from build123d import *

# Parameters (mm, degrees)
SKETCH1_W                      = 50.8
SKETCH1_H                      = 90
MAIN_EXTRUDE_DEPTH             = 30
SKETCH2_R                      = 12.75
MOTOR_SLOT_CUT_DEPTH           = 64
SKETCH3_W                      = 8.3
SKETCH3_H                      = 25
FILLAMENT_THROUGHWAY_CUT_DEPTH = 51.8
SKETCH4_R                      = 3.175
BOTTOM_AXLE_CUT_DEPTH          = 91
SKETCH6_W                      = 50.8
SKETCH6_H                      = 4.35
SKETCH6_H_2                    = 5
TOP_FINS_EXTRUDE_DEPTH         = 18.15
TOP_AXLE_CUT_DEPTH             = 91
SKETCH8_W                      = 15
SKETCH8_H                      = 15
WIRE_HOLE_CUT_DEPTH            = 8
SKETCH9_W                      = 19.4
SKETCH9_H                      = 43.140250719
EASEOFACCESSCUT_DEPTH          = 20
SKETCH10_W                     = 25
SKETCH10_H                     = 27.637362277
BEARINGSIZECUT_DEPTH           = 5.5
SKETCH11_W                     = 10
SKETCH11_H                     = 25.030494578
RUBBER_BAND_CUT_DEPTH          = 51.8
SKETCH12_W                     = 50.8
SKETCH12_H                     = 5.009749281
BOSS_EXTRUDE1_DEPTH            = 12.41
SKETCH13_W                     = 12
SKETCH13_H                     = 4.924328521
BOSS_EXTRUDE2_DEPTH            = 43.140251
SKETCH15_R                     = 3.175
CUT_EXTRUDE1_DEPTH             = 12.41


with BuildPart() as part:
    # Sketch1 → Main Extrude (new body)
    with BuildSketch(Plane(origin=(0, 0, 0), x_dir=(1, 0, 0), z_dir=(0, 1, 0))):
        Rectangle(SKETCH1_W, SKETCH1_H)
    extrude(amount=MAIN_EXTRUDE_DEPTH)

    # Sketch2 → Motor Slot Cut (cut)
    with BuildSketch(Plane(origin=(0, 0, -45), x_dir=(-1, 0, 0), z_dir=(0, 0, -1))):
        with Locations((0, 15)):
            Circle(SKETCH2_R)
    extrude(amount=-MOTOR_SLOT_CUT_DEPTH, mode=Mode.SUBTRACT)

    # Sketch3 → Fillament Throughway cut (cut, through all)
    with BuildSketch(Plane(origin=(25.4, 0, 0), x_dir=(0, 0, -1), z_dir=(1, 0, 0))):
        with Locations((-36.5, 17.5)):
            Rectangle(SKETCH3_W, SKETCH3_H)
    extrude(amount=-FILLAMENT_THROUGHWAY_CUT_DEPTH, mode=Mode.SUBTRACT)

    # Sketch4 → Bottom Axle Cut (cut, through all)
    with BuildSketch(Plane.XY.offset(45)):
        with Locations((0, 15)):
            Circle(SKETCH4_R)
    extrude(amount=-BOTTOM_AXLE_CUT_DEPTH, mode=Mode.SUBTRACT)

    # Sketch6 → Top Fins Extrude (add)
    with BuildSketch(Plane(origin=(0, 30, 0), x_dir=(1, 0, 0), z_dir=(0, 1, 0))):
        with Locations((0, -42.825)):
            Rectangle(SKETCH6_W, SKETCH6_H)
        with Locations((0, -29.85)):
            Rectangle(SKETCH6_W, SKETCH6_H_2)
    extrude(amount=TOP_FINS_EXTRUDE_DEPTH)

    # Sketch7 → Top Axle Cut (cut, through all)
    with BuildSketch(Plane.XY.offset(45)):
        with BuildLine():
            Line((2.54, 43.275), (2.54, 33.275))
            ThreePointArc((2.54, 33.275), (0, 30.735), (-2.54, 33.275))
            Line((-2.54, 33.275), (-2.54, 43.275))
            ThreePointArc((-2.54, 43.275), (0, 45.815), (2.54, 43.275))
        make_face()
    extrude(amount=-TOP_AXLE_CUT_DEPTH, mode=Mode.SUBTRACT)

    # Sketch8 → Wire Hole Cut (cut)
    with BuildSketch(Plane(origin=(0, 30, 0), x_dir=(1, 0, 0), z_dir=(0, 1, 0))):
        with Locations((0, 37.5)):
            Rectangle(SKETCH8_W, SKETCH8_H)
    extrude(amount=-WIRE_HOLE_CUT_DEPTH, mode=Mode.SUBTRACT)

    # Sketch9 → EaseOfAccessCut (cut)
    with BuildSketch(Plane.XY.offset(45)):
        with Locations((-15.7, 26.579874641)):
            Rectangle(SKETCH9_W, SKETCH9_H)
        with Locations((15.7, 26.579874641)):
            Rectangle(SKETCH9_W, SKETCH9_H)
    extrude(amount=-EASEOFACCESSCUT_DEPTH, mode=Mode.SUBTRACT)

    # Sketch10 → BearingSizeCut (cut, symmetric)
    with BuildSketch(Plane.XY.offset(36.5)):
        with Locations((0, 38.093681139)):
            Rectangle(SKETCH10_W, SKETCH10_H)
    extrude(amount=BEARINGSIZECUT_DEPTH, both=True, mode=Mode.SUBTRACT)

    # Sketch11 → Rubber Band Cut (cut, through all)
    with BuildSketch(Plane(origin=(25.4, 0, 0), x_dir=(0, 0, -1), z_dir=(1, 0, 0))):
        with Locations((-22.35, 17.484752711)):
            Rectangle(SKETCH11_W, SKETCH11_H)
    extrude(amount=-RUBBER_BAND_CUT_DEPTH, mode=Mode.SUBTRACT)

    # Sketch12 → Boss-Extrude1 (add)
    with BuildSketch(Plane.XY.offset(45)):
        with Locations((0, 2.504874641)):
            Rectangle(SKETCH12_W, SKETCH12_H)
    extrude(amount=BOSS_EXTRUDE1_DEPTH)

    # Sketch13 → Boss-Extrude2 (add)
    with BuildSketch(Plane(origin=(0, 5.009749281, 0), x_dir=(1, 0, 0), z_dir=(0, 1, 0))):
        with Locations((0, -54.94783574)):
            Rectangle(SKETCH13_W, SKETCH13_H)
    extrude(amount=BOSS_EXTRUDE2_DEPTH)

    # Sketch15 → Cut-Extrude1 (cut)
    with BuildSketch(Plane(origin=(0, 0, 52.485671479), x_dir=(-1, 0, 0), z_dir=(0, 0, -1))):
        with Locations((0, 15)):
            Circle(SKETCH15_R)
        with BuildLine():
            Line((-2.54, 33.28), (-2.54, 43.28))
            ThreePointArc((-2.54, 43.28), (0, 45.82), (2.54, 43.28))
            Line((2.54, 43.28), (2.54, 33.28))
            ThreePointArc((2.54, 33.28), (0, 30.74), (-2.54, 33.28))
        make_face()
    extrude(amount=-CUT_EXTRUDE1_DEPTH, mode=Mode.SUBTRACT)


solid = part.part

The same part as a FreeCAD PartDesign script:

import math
import FreeCAD as App
import Part
import Sketcher

V = App.Vector


def add_polygon(sketch, points):
    """Adds a closed chain of lines whose ends are joined by coincident constraints."""
    first, n = sketch.GeometryCount, len(points)
    for a, b in zip(points, points[1:] + points[:1]):
        sketch.addGeometry(Part.LineSegment(App.Vector(*a, 0), App.Vector(*b, 0)), False)
    for i in range(n):
        sketch.addConstraint(Sketcher.Constraint("Coincident", first + i, 2, first + (i + 1) % n, 1))

doc = App.newDocument("Part")
body = doc.addObject("PartDesign::Body", "Body")

sketch1 = body.newObject("Sketcher::SketchObject", "Sketch")
sketch1.AttachmentSupport = (doc.getObject("XZ_Plane"), [""])
sketch1.MapMode = "FlatFace"
add_polygon(sketch1, [(-25.4, -45), (-25.4, 45), (25.4, 45), (25.4, -45)])
sketch1.addConstraint(Sketcher.Constraint("Vertical", 0))
sketch1.addConstraint(Sketcher.Constraint("Horizontal", 1))
sketch1.addConstraint(Sketcher.Constraint("Vertical", 2))
sketch1.addConstraint(Sketcher.Constraint("Horizontal", 3))
sketch1.addConstraint(Sketcher.Constraint("Symmetric", 0, 2, 2, 2, -1, 1))
sketch1.addConstraint(Sketcher.Constraint("DistanceY", 0, 1, 0, 2, 90.0))
sketch1.addConstraint(Sketcher.Constraint("DistanceX", 1, 1, 1, 2, 50.8))
pad1 = body.newObject("PartDesign::Pad", "Pad")
pad1.Profile = sketch1
pad1.Length = 30
pad1.Reversed = True

sketch2 = body.newObject("Sketcher::SketchObject", "Sketch001")
sketch2.AttachmentSupport = (doc.getObject("XY_Plane"), [""])
sketch2.MapMode = "FlatFace"
sketch2.AttachmentOffset = App.Placement(V(0, 0, -45), App.Rotation())
sketch2.addGeometry(Part.Circle(V(0, 15, 0), V(0, 0, 1), 12.75), False)
sketch2.addConstraint(Sketcher.Constraint("PointOnObject", 0, 3, -2))
sketch2.addConstraint(Sketcher.Constraint("Diameter", 0, 25.5))
sketch2.addConstraint(Sketcher.Constraint("DistanceY", -1, 1, 0, 3, 15.0))
pocket1 = body.newObject("PartDesign::Pocket", "Pocket")
pocket1.Profile = sketch2
pocket1.Length = 64
pocket1.Reversed = True

sketch3 = body.newObject("Sketcher::SketchObject", "Sketch002")
sketch3.AttachmentSupport = (doc.getObject("YZ_Plane"), [""])
sketch3.MapMode = "FlatFace"
sketch3.AttachmentOffset = App.Placement(V(0, 0, 25.4), App.Rotation())
add_polygon(sketch3, [(30, 40.65), (5, 40.65), (5, 32.35), (30, 32.35)])
sketch3.addConstraint(Sketcher.Constraint("Horizontal", 0))
sketch3.addConstraint(Sketcher.Constraint("Vertical", 1))
sketch3.addConstraint(Sketcher.Constraint("Horizontal", 2))
sketch3.addConstraint(Sketcher.Constraint("Vertical", 3))
sketch3.addConstraint(Sketcher.Constraint("DistanceX", 0, 2, 0, 1, 25.0))
sketch3.addConstraint(Sketcher.Constraint("DistanceY", 1, 2, 1, 1, 8.3))
sketch3.addConstraint(Sketcher.Constraint("DistanceX", -1, 1, 0, 2, 5.0))
sketch3.addConstraint(Sketcher.Constraint("DistanceY", -1, 1, 0, 2, 40.65))
pocket2 = body.newObject("PartDesign::Pocket", "Pocket001")
pocket2.Profile = sketch3
pocket2.Type = "ThroughAll"

sketch4 = body.newObject("Sketcher::SketchObject", "Sketch003")
sketch4.AttachmentSupport = (doc.getObject("XY_Plane"), [""])
sketch4.MapMode = "FlatFace"
sketch4.AttachmentOffset = App.Placement(V(0, 0, 45), App.Rotation())
sketch4.addGeometry(Part.Circle(V(0, 15, 0), V(0, 0, 1), 3.175), False)
sketch4.addConstraint(Sketcher.Constraint("PointOnObject", 0, 3, -2))
sketch4.addConstraint(Sketcher.Constraint("Diameter", 0, 6.35))
sketch4.addConstraint(Sketcher.Constraint("DistanceY", -1, 1, 0, 3, 15.0))
pocket3 = body.newObject("PartDesign::Pocket", "Pocket002")
pocket3.Profile = sketch4
pocket3.Type = "ThroughAll"

sketch5 = body.newObject("Sketcher::SketchObject", "Sketch004")
sketch5.AttachmentSupport = (doc.getObject("XZ_Plane"), [""])
sketch5.MapMode = "FlatFace"
sketch5.AttachmentOffset = App.Placement(V(0, 0, -30), App.Rotation())
add_polygon(sketch5, [(-25.4, 40.65), (-25.4, 45), (25.4, 45), (25.4, 40.65)])
add_polygon(sketch5, [(-25.4, 27.35), (-25.4, 32.35), (25.4, 32.35), (25.4, 27.35)])
sketch5.addConstraint(Sketcher.Constraint("Vertical", 0))
sketch5.addConstraint(Sketcher.Constraint("Horizontal", 1))
sketch5.addConstraint(Sketcher.Constraint("Vertical", 2))
sketch5.addConstraint(Sketcher.Constraint("Horizontal", 3))
sketch5.addConstraint(Sketcher.Constraint("Vertical", 4))
sketch5.addConstraint(Sketcher.Constraint("Horizontal", 5))
sketch5.addConstraint(Sketcher.Constraint("Vertical", 6))
sketch5.addConstraint(Sketcher.Constraint("Horizontal", 7))
sketch5.addConstraint(Sketcher.Constraint("Vertical", 3, 2, 4, 2))
sketch5.addConstraint(Sketcher.Constraint("Vertical", 2, 2, 5, 2))
sketch5.addConstraint(Sketcher.Constraint("DistanceY", 4, 1, 4, 2, 5.0))
sketch5.addConstraint(Sketcher.Constraint("DistanceX", 1, 1, 1, 2, 50.8))
sketch5.addConstraint(Sketcher.Constraint("DistanceY", -1, 1, 0, 2, 45.0))
sketch5.addConstraint(Sketcher.Constraint("DistanceY", 0, 1, 0, 2, 4.35))
sketch5.addConstraint(Sketcher.Constraint("DistanceX", 0, 2, -1, 1, 25.4))
sketch5.addConstraint(Sketcher.Constraint("DistanceY", 4, 2, 3, 2, 8.3))
pad2 = body.newObject("PartDesign::Pad", "Pad001")
pad2.Profile = sketch5
pad2.Length = 18.15
pad2.Reversed = True

sketch6 = body.newObject("Sketcher::SketchObject", "Sketch005")
sketch6.AttachmentSupport = (doc.getObject("XY_Plane"), [""])
sketch6.MapMode = "FlatFace"
sketch6.AttachmentOffset = App.Placement(V(0, 0, 45), App.Rotation())
sketch6.addGeometry(Part.LineSegment(V(2.54, 33.275, 0), V(2.54, 43.275, 0)), False)
sketch6.addGeometry(Part.ArcOfCircle(Part.Circle(V(0, 43.275, 0), V(0, 0, 1), 2.54), math.radians(0), math.radians(180)), False)
sketch6.addGeometry(Part.LineSegment(V(-2.54, 43.275, 0), V(-2.54, 33.275, 0)), False)
sketch6.addGeometry(Part.ArcOfCircle(Part.Circle(V(0, 33.275, 0), V(0, 0, 1), 2.54), math.radians(180), math.radians(360)), False)
sketch6.addConstraint(Sketcher.Constraint("Tangent", 0, 2, 1, 1))
sketch6.addConstraint(Sketcher.Constraint("Tangent", 1, 2, 2, 1))
sketch6.addConstraint(Sketcher.Constraint("Tangent", 2, 2, 3, 1))
sketch6.addConstraint(Sketcher.Constraint("Tangent", 3, 2, 0, 1))
sketch6.addConstraint(Sketcher.Constraint("Vertical", 0))
sketch6.addConstraint(Sketcher.Constraint("Vertical", 2))
sketch6.addConstraint(Sketcher.Constraint("PointOnObject", 1, 3, -2))
sketch6.addConstraint(Sketcher.Constraint("DistanceY", 0, 1, 0, 2, 10.0))
sketch6.addConstraint(Sketcher.Constraint("Radius", 1, 2.54))
sketch6.addConstraint(Sketcher.Constraint("DistanceY", -1, 1, 1, 3, 43.275))
pocket4 = body.newObject("PartDesign::Pocket", "Pocket003")
pocket4.Profile = sketch6
pocket4.Type = "ThroughAll"

sketch7 = body.newObject("Sketcher::SketchObject", "Sketch006")
sketch7.AttachmentSupport = (doc.getObject("XZ_Plane"), [""])
sketch7.MapMode = "FlatFace"
sketch7.AttachmentOffset = App.Placement(V(0, 0, -30), App.Rotation())
add_polygon(sketch7, [(-7.5, -45), (-7.5, -30), (7.5, -30), (7.5, -45)])
sketch7.addConstraint(Sketcher.Constraint("Vertical", 0))
sketch7.addConstraint(Sketcher.Constraint("Horizontal", 1))
sketch7.addConstraint(Sketcher.Constraint("Vertical", 2))
sketch7.addConstraint(Sketcher.Constraint("Horizontal", 3))
sketch7.addConstraint(Sketcher.Constraint("Equal", 3, 0))
sketch7.addConstraint(Sketcher.Constraint("DistanceX", 1, 1, 1, 2, 15.0))
sketch7.addConstraint(Sketcher.Constraint("DistanceY", 0, 2, -1, 1, 30.0))
sketch7.addConstraint(Sketcher.Constraint("DistanceX", 0, 2, -1, 1, 7.5))
pocket5 = body.newObject("PartDesign::Pocket", "Pocket004")
pocket5.Profile = sketch7
pocket5.Length = 8
pocket5.Reversed = True

sketch8 = body.newObject("Sketcher::SketchObject", "Sketch007")
sketch8.AttachmentSupport = (doc.getObject("XY_Plane"), [""])
sketch8.MapMode = "FlatFace"
sketch8.AttachmentOffset = App.Placement(V(0, 0, 45), App.Rotation())
add_polygon(sketch8, [(-25.4, 48.15), (-25.4, 5.009749), (-6, 5.009749), (-6, 48.15)])
add_polygon(sketch8, [(6, 48.15), (6, 5.009749), (25.4, 5.009749), (25.4, 48.15)])
sketch8.addConstraint(Sketcher.Constraint("Vertical", 0))
sketch8.addConstraint(Sketcher.Constraint("Horizontal", 1))
sketch8.addConstraint(Sketcher.Constraint("Vertical", 2))
sketch8.addConstraint(Sketcher.Constraint("Horizontal", 3))
sketch8.addConstraint(Sketcher.Constraint("Vertical", 4))
sketch8.addConstraint(Sketcher.Constraint("Horizontal", 5))
sketch8.addConstraint(Sketcher.Constraint("Vertical", 6))
sketch8.addConstraint(Sketcher.Constraint("Horizontal", 7))
sketch8.addConstraint(Sketcher.Constraint("Symmetric", 1, 2, 4, 2, -2))
sketch8.addConstraint(Sketcher.Constraint("Symmetric", 3, 2, 6, 2, -2))
sketch8.addConstraint(Sketcher.Constraint("DistanceX", 1, 1, 1, 2, 19.4))
sketch8.addConstraint(Sketcher.Constraint("DistanceX", 1, 2, -1, 1, 6.0))
sketch8.addConstraint(Sketcher.Constraint("DistanceY", -1, 1, 2, 2, 48.15))
sketch8.addConstraint(Sketcher.Constraint("DistanceY", 0, 2, 0, 1, 43.140251))
pocket6 = body.newObject("PartDesign::Pocket", "Pocket005")
pocket6.Profile = sketch8
pocket6.Length = 20

sketch9 = body.newObject("Sketcher::SketchObject", "Sketch008")
sketch9.AttachmentSupport = (doc.getObject("XY_Plane"), [""])
sketch9.MapMode = "FlatFace"
sketch9.AttachmentOffset = App.Placement(V(0, 0, 36.5), App.Rotation())
add_polygon(sketch9, [(-12.5, 51.912362), (-12.5, 24.275), (12.5, 24.275), (12.5, 51.912362)])
sketch9.addConstraint(Sketcher.Constraint("Vertical", 0))
sketch9.addConstraint(Sketcher.Constraint("Horizontal", 1))
sketch9.addConstraint(Sketcher.Constraint("Vertical", 2))
sketch9.addConstraint(Sketcher.Constraint("Horizontal", 3))
sketch9.addConstraint(Sketcher.Constraint("DistanceX", 1, 1, 1, 2, 25.0))
sketch9.addConstraint(Sketcher.Constraint("DistanceX", 0, 2, -1, 1, 12.5))
sketch9.addConstraint(Sketcher.Constraint("DistanceY", -1, 1, 0, 2, 24.275))
sketch9.addConstraint(Sketcher.Constraint("DistanceY", 0, 2, 0, 1, 27.637362))
pocket7 = body.newObject("PartDesign::Pocket", "Pocket006")
pocket7.Profile = sketch9
pocket7.Length = 11
pocket7.Midplane = True

sketch10 = body.newObject("Sketcher::SketchObject", "Sketch009")
sketch10.AttachmentSupport = (doc.getObject("YZ_Plane"), [""])
sketch10.MapMode = "FlatFace"
sketch10.AttachmentOffset = App.Placement(V(0, 0, 25.4), App.Rotation())
add_polygon(sketch10, [(30, 27.35), (4.969505, 27.35), (4.969505, 17.35), (30, 17.35)])
sketch10.addConstraint(Sketcher.Constraint("Horizontal", 0))
sketch10.addConstraint(Sketcher.Constraint("Vertical", 1))
sketch10.addConstraint(Sketcher.Constraint("Horizontal", 2))
sketch10.addConstraint(Sketcher.Constraint("Vertical", 3))
sketch10.addConstraint(Sketcher.Constraint("DistanceY", 1, 2, 1, 1, 10.0))
sketch10.addConstraint(Sketcher.Constraint("DistanceX", -1, 1, 2, 2, 30.0))
sketch10.addConstraint(Sketcher.Constraint("DistanceY", -1, 1, 0, 2, 27.35))
sketch10.addConstraint(Sketcher.Constraint("DistanceX", 0, 2, 0, 1, 25.030495))
pocket8 = body.newObject("PartDesign::Pocket", "Pocket007")
pocket8.Profile = sketch10
pocket8.Type = "ThroughAll"

sketch11 = body.newObject("Sketcher::SketchObject", "Sketch010")
sketch11.AttachmentSupport = (doc.getObject("XY_Plane"), [""])
sketch11.MapMode = "FlatFace"
sketch11.AttachmentOffset = App.Placement(V(0, 0, 45), App.Rotation())
add_polygon(sketch11, [(-25.4, 5.009749), (-25.4, 0), (25.4, 0), (25.4, 5.009749)])
sketch11.addConstraint(Sketcher.Constraint("Vertical", 0))
sketch11.addConstraint(Sketcher.Constraint("Horizontal", 1))
sketch11.addConstraint(Sketcher.Constraint("Vertical", 2))
sketch11.addConstraint(Sketcher.Constraint("Horizontal", 3))
sketch11.addConstraint(Sketcher.Constraint("Symmetric", 0, 2, 1, 2, -1, 1))
sketch11.addConstraint(Sketcher.Constraint("DistanceX", 1, 1, 1, 2, 50.8))
sketch11.addConstraint(Sketcher.Constraint("DistanceY", 0, 2, 0, 1, 5.009749))
pad3 = body.newObject("PartDesign::Pad", "Pad002")
pad3.Profile = sketch11
pad3.Length = 12.41

sketch12 = body.newObject("Sketcher::SketchObject", "Sketch011")
sketch12.AttachmentSupport = (doc.getObject("XZ_Plane"), [""])
sketch12.MapMode = "FlatFace"
sketch12.AttachmentOffset = App.Placement(V(0, 0, -5.009749), App.Rotation())
add_polygon(sketch12, [(-6, 52.485671), (-6, 57.41), (6, 57.41), (6, 52.485671)])
sketch12.addConstraint(Sketcher.Constraint("Vertical", 0))
sketch12.addConstraint(Sketcher.Constraint("Horizontal", 1))
sketch12.addConstraint(Sketcher.Constraint("Vertical", 2))
sketch12.addConstraint(Sketcher.Constraint("Horizontal", 3))
sketch12.addConstraint(Sketcher.Constraint("DistanceX", 1, 1, 1, 2, 12.0))
sketch12.addConstraint(Sketcher.Constraint("DistanceX", 0, 2, -1, 1, 6.0))
sketch12.addConstraint(Sketcher.Constraint("DistanceY", -1, 1, 0, 2, 57.41))
sketch12.addConstraint(Sketcher.Constraint("DistanceY", 0, 1, 0, 2, 4.924329))
pad4 = body.newObject("PartDesign::Pad", "Pad003")
pad4.Profile = sketch12
pad4.Length = 43.140251
pad4.Reversed = True

sketch13 = body.newObject("Sketcher::SketchObject", "Sketch012")
sketch13.AttachmentSupport = (doc.getObject("XY_Plane"), [""])
sketch13.MapMode = "FlatFace"
sketch13.AttachmentOffset = App.Placement(V(0, 0, 52.485671), App.Rotation())
sketch13.addGeometry(Part.Circle(V(0, 15, 0), V(0, 0, 1), 3.175), False)
sketch13.addGeometry(Part.LineSegment(V(2.54, 43.28, 0), V(2.54, 33.28, 0)), False)
sketch13.addGeometry(Part.ArcOfCircle(Part.Circle(V(0, 33.28, 0), V(0, 0, 1), 2.54), math.radians(180), math.radians(360)), False)
sketch13.addGeometry(Part.LineSegment(V(-2.54, 33.28, 0), V(-2.54, 43.28, 0)), False)
sketch13.addGeometry(Part.ArcOfCircle(Part.Circle(V(0, 43.28, 0), V(0, 0, 1), 2.54), math.radians(0), math.radians(180)), False)
sketch13.addConstraint(Sketcher.Constraint("Tangent", 1, 2, 2, 2))
sketch13.addConstraint(Sketcher.Constraint("Tangent", 2, 1, 3, 1))
sketch13.addConstraint(Sketcher.Constraint("Tangent", 3, 2, 4, 2))
sketch13.addConstraint(Sketcher.Constraint("Tangent", 4, 1, 1, 1))
sketch13.addConstraint(Sketcher.Constraint("Vertical", 1))
sketch13.addConstraint(Sketcher.Constraint("Vertical", 3))
sketch13.addConstraint(Sketcher.Constraint("PointOnObject", 0, 3, -2))
sketch13.addConstraint(Sketcher.Constraint("PointOnObject", 2, 3, -2))
sketch13.addConstraint(Sketcher.Constraint("Diameter", 0, 6.35))
sketch13.addConstraint(Sketcher.Constraint("DistanceY", 1, 2, 1, 1, 10.0))
sketch13.addConstraint(Sketcher.Constraint("Radius", 2, 2.54))
sketch13.addConstraint(Sketcher.Constraint("DistanceY", -1, 1, 0, 3, 15.0))
sketch13.addConstraint(Sketcher.Constraint("DistanceY", -1, 1, 2, 3, 33.28))
pocket9 = body.newObject("PartDesign::Pocket", "Pocket008")
pocket9.Profile = sketch13
pocket9.Length = 12.41
pocket9.Reversed = True

doc.recompute()
